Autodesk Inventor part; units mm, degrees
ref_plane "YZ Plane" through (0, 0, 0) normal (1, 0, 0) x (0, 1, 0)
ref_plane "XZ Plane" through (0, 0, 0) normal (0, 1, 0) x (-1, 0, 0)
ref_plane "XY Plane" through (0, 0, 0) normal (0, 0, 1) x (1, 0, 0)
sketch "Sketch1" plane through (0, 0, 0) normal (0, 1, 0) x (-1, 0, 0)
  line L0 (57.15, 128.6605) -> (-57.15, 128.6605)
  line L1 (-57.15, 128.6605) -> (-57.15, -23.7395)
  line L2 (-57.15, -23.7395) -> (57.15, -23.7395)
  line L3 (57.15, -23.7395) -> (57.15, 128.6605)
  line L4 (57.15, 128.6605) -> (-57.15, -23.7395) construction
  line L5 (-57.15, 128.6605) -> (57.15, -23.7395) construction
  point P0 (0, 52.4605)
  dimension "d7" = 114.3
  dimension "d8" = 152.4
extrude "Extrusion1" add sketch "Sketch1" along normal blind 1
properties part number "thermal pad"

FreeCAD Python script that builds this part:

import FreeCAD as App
import Part
import Sketcher
from FreeCAD import Vector
Q = App.Units.Quantity

doc = App.newDocument("Part")
params = doc.addObject("Spreadsheet::Sheet", "Params")
for row, (alias, value) in enumerate([
    ("sketch1_height", "6 in"),
    ("sketch1_width", "4.5 in"),
    ("pad1_length", "1 mm"),
], start=1):
    params.set(f"A{row}", alias)
    params.set(f"B{row}", "=" + value)
    params.setAlias(f"B{row}", alias)

body = doc.addObject("PartDesign::Body", "Body")

# Sketch on XZ plane
sketch1 = body.newObject("Sketcher::SketchObject", "Sketch")
sketch1.AttachmentSupport = (doc.getObject("XZ_Plane"), [""])
sketch1.MapMode = "FlatFace"
sketch1.addGeometry(Part.LineSegment(Vector(-57, -24, 0), Vector(-57, 129, 0)), False)
sketch1.addGeometry(Part.LineSegment(Vector(-57, 129, 0), Vector(57, 129, 0)), False)
sketch1.addGeometry(Part.LineSegment(Vector(57, 129, 0), Vector(57, -24, 0)), False)
sketch1.addGeometry(Part.LineSegment(Vector(57, -24, 0), Vector(-57, -24, 0)), False)
sketch1.addConstraint(Sketcher.Constraint("Coincident", 0, 2, 1, 1))
sketch1.addConstraint(Sketcher.Constraint("Coincident", 1, 2, 2, 1))
sketch1.addConstraint(Sketcher.Constraint("Coincident", 2, 2, 3, 1))
sketch1.addConstraint(Sketcher.Constraint("Coincident", 3, 2, 0, 1))
sketch1.addConstraint(Sketcher.Constraint("Vertical", 0))
sketch1.addConstraint(Sketcher.Constraint("Horizontal", 1))
sketch1.addConstraint(Sketcher.Constraint("Vertical", 2))
sketch1.addConstraint(Sketcher.Constraint("Horizontal", 3))
sketch1.addConstraint(Sketcher.Constraint("DistanceY", 0, 1, 0, 2, Q("6 in")))
sketch1.addConstraint(Sketcher.Constraint("DistanceX", 1, 1, 1, 2, Q("4.5 in")))
sketch1.addConstraint(Sketcher.Constraint("DistanceX", 0, 2, -1, 1, Q("2.25 in")))
sketch1.addConstraint(Sketcher.Constraint("DistanceY", -1, 1, 0, 2, Q("128.6605 mm")))
sketch1.setExpression("Constraints[8]", "Params.sketch1_height")
sketch1.setExpression("Constraints[9]", "Params.sketch1_width")
pad1 = body.newObject("PartDesign::Pad", "Pad")
pad1.Profile = sketch1
pad1.setExpression("Length", "Params.pad1_length")
pad1.Reversed = True

doc.recompute()
